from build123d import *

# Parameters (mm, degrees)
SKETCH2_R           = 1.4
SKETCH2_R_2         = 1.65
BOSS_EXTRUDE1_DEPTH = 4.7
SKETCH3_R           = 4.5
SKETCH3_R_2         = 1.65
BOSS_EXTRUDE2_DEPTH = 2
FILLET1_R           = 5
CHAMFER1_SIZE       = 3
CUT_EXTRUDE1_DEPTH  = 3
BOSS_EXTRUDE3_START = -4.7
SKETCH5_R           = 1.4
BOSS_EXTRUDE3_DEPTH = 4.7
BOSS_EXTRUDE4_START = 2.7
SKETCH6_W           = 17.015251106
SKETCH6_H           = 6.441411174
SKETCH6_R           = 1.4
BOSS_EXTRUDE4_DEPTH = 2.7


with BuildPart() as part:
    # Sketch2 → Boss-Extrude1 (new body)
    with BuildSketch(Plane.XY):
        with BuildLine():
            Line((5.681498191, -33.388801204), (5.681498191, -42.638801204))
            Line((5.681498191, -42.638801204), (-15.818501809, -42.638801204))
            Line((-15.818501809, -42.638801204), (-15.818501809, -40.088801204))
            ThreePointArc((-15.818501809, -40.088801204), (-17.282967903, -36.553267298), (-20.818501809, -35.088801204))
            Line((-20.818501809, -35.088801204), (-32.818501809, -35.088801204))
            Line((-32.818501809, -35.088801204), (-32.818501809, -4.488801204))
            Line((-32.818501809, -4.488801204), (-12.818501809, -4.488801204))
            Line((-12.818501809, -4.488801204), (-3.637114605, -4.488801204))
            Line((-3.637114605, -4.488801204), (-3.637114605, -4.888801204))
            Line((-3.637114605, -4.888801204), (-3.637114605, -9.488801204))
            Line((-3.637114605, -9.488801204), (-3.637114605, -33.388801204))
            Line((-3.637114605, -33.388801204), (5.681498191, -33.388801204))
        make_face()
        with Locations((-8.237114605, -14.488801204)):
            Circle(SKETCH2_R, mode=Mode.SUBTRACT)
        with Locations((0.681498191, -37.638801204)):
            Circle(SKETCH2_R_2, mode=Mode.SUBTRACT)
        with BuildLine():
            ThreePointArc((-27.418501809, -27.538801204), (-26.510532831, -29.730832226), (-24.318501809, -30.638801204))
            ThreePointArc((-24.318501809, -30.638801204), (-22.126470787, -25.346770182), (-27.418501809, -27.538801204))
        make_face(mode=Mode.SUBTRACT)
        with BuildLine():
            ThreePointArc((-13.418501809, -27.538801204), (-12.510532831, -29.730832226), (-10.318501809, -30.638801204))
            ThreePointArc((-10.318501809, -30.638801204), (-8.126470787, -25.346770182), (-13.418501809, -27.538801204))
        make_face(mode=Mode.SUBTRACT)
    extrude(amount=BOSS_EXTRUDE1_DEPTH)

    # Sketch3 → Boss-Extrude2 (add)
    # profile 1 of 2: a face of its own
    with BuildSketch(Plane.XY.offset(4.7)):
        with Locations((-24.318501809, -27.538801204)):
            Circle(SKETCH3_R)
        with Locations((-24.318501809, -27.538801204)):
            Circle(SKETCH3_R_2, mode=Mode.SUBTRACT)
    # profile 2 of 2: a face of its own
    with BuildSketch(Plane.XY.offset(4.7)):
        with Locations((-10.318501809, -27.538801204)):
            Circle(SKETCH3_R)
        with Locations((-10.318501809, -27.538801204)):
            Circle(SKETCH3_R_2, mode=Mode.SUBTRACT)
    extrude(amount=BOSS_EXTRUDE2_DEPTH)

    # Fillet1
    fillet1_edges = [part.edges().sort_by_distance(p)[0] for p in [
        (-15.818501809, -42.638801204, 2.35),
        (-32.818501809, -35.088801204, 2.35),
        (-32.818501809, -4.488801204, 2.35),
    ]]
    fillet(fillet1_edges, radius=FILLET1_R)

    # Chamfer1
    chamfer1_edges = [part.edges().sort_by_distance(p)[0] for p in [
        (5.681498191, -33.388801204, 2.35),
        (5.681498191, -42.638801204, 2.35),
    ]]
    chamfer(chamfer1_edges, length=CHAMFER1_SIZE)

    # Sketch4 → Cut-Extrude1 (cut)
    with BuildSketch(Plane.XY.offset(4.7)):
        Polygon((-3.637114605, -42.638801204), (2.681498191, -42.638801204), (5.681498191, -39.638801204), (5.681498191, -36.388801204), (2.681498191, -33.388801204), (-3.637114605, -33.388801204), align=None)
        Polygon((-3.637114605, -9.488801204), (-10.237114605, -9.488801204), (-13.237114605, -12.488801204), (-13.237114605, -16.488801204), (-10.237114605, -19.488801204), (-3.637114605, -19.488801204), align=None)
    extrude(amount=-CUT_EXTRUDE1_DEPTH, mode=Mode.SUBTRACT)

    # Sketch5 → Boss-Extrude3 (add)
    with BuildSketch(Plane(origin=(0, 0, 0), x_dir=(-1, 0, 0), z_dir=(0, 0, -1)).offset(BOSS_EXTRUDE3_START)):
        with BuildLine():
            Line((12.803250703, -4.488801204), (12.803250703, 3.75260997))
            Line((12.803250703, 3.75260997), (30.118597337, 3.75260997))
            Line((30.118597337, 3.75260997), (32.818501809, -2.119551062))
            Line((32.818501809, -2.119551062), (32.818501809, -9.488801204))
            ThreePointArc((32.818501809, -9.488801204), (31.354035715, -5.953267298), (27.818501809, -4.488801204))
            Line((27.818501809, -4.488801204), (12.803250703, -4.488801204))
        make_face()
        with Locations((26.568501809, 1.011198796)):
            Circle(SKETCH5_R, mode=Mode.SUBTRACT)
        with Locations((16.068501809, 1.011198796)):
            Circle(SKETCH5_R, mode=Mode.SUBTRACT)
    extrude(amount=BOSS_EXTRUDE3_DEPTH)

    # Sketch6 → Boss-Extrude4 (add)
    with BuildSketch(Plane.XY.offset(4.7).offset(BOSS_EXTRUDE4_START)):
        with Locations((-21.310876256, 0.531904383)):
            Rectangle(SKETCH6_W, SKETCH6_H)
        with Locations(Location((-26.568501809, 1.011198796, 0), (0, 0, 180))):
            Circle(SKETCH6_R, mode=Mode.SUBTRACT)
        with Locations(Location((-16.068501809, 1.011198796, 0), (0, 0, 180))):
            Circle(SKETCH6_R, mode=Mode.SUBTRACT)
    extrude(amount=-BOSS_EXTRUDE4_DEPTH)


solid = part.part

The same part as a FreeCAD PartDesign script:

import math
import FreeCAD as App
import Part
import Sketcher

V = App.Vector


def edges_at(feature, points):
    """Names of the edges that pass closest to the given points."""
    edges = feature.Shape.Edges
    near = lambda p: min(range(len(edges)), key=lambda i: edges[i].distToShape(Part.Vertex(*p))[0])
    return sorted({f"Edge{near(p) + 1}" for p in points})

doc = App.newDocument("Part")
body = doc.addObject("PartDesign::Body", "Body")

# Sketch on XY plane
sketch1 = doc.addObject("Sketcher::SketchObject", "Sketch")
body.addObject(sketch1)
sketch1.AttachmentSupport = (doc.XY_Plane, [""])
sketch1.MapMode = "FlatFace"
sketch1.addGeometry(Part.LineSegment(V(5.681498, -42.638801, 0), V(5.681498, -33.388801, 0)), False)
sketch1.addGeometry(Part.LineSegment(V(5.681498, -33.388801, 0), V(-3.637115, -33.388801, 0)), False)
sketch1.addGeometry(Part.LineSegment(V(-3.637115, -33.388801, 0), V(-3.637115, -4.488801, 0)), False)
sketch1.addGeometry(Part.LineSegment(V(-3.637115, -4.488801, 0), V(-32.818502, -4.488801, 0)), False)
sketch1.addGeometry(Part.LineSegment(V(-32.818502, -4.488801, 0), V(-32.818502, -35.088801, 0)), False)
sketch1.addGeometry(Part.LineSegment(V(-32.818502, -35.088801, 0), V(-20.818502, -35.088801, 0)), False)
sketch1.addGeometry(Part.ArcOfCircle(Part.Circle(V(-20.818502, -40.088801, 0), V(0, 0, 1), 5), math.radians(0), math.radians(90)), False)
sketch1.addGeometry(Part.LineSegment(V(-15.818502, -40.088801, 0), V(-15.818502, -42.638801, 0)), False)
sketch1.addGeometry(Part.LineSegment(V(-15.818502, -42.638801, 0), V(5.681498, -42.638801, 0)), False)
sketch1.addGeometry(Part.Circle(V(0.681498, -37.638801, 0), V(0, 0, 1), 1.65), False)
sketch1.addGeometry(Part.ArcOfCircle(Part.Circle(V(-10.318502, -27.538801, 0), V(0, 0, 1), 3.1), math.radians(-90), math.radians(180)), False)
sketch1.addGeometry(Part.ArcOfCircle(Part.Circle(V(-10.318502, -27.538801, 0), V(0, 0, 1), 3.1), math.radians(180), math.radians(270)), False)
sketch1.addGeometry(Part.ArcOfCircle(Part.Circle(V(-24.318502, -27.538801, 0), V(0, 0, 1), 3.1), math.radians(-90), math.radians(180)), False)
sketch1.addGeometry(Part.ArcOfCircle(Part.Circle(V(-24.318502, -27.538801, 0), V(0, 0, 1), 3.1), math.radians(180), math.radians(270)), False)
sketch1.addGeometry(Part.Circle(V(-8.237115, -14.488801, 0), V(0, 0, 1), 1.4), False)
sketch1.addConstraint(Sketcher.Constraint("Coincident", 0, 2, 1, 1))
sketch1.addConstraint(Sketcher.Constraint("Coincident", 1, 2, 2, 1))
sketch1.addConstraint(Sketcher.Constraint("Coincident", 2, 2, 3, 1))
sketch1.addConstraint(Sketcher.Constraint("Coincident", 3, 2, 4, 1))
sketch1.addConstraint(Sketcher.Constraint("Coincident", 4, 2, 5, 1))
sketch1.addConstraint(Sketcher.Constraint("Tangent", 5, 2, 6, 2))
sketch1.addConstraint(Sketcher.Constraint("Tangent", 6, 1, 7, 1))
sketch1.addConstraint(Sketcher.Constraint("Coincident", 7, 2, 8, 1))
sketch1.addConstraint(Sketcher.Constraint("Coincident", 8, 2, 0, 1))
sketch1.addConstraint(Sketcher.Constraint("Tangent", 10, 1, 11, 2))
sketch1.addConstraint(Sketcher.Constraint("Coincident", 11, 1, 10, 2))
sketch1.addConstraint(Sketcher.Constraint("Tangent", 12, 1, 13, 2))
sketch1.addConstraint(Sketcher.Constraint("Coincident", 13, 1, 12, 2))
sketch1.addConstraint(Sketcher.Constraint("Vertical", 0))
sketch1.addConstraint(Sketcher.Constraint("Horizontal", 1))
sketch1.addConstraint(Sketcher.Constraint("Vertical", 2))
sketch1.addConstraint(Sketcher.Constraint("Horizontal", 3))
sketch1.addConstraint(Sketcher.Constraint("Vertical", 4))
sketch1.addConstraint(Sketcher.Constraint("Horizontal", 5))
sketch1.addConstraint(Sketcher.Constraint("Vertical", 7))
sketch1.addConstraint(Sketcher.Constraint("Horizontal", 8))
sketch1.addConstraint(Sketcher.Constraint("Equal", 11, 12))
sketch1.addConstraint(Sketcher.Constraint("Horizontal", 11, 3, 12, 3))
sketch1.addConstraint(Sketcher.Constraint("Horizontal", 13, 3, 11, 1))
sketch1.addConstraint(Sketcher.Constraint("Horizontal", 11, 1, 13, 1))
sketch1.addConstraint(Sketcher.Constraint("Vertical", 11, 3, 10, 1))
sketch1.addConstraint(Sketcher.Constraint("Vertical", 13, 3, 12, 1))
sketch1.addConstraint(Sketcher.Constraint("Radius", 6, 5.0))
sketch1.addConstraint(Sketcher.Constraint("Diameter", 9, 3.3))
sketch1.addConstraint(Sketcher.Constraint("Diameter", 14, 2.8))
sketch1.addConstraint(Sketcher.Constraint("Radius", 10, 3.1))
sketch1.addConstraint(Sketcher.Constraint("DistanceX", 5, 1, 5, 2, 12.0))
sketch1.addConstraint(Sketcher.Constraint("DistanceX", 8, 1, 8, 2, 21.5))
sketch1.addConstraint(Sketcher.Constraint("DistanceY", 2, 1, 2, 2, 28.9))
sketch1.addConstraint(Sketcher.Constraint("DistanceY", 4, 2, 4, 1, 30.6))
sketch1.addConstraint(Sketcher.Constraint("DistanceX", 10, 3, 9, 3, 11.0))
sketch1.addConstraint(Sketcher.Constraint("DistanceX", 12, 3, 11, 3, 14.0))
sketch1.addConstraint(Sketcher.Constraint("DistanceX", 9, 3, 0, 2, 5.0))
sketch1.addConstraint(Sketcher.Constraint("DistanceY", 14, 3, 2, 2, 10.0))
sketch1.addConstraint(Sketcher.Constraint("DistanceY", 8, 2, 9, 3, 5.0))
sketch1.addConstraint(Sketcher.Constraint("DistanceY", 0, 1, 0, 2, 9.25))
sketch1.addConstraint(Sketcher.Constraint("DistanceY", 9, 3, 10, 3, 10.1))
sketch1.addConstraint(Sketcher.Constraint("DistanceX", 14, 3, 2, 2, 4.6))
sketch1.addConstraint(Sketcher.Constraint("DistanceX", 6, 3, -1, 1, 20.818502))
sketch1.addConstraint(Sketcher.Constraint("DistanceY", 6, 3, -1, 1, 40.088801))
sketch1.addConstraint(Sketcher.Constraint("DistanceX", 1, 2, 1, 1, 9.318613))
pad1 = doc.addObject("PartDesign::Pad", "Pad")
body.addObject(pad1)
pad1.Profile = sketch1
pad1.Length = 4.7

# Sketch on XY plane
sketch2 = doc.addObject("Sketcher::SketchObject", "Sketch001")
body.addObject(sketch2)
sketch2.AttachmentSupport = (doc.XY_Plane, [""])
sketch2.MapMode = "FlatFace"
sketch2.AttachmentOffset = App.Placement(V(0, 0, 4.7), App.Rotation())
sketch2.addGeometry(Part.Circle(V(-24.318502, -27.538801, 0), V(0, 0, 1), 4.5), False)
sketch2.addGeometry(Part.Circle(V(-24.318502, -27.538801, 0), V(0, 0, 1), 1.65), False)
sketch2.addGeometry(Part.Circle(V(-10.318502, -27.538801, 0), V(0, 0, 1), 4.5), False)
sketch2.addGeometry(Part.Circle(V(-10.318502, -27.538801, 0), V(0, 0, 1), 1.65), False)
sketch2.addConstraint(Sketcher.Constraint("Coincident", 1, 3, 0, 3))
sketch2.addConstraint(Sketcher.Constraint("Coincident", 3, 3, 2, 3))
sketch2.addConstraint(Sketcher.Constraint("Equal", 0, 2))
sketch2.addConstraint(Sketcher.Constraint("Equal", 1, 3))
sketch2.addConstraint(Sketcher.Constraint("Horizontal", 1, 3, 2, 3))
sketch2.addConstraint(Sketcher.Constraint("Diameter", 0, 9.0))
sketch2.addConstraint(Sketcher.Constraint("Diameter", 1, 3.3))
sketch2.addConstraint(Sketcher.Constraint("DistanceX", 0, 3, 2, 3, 14.0))
sketch2.addConstraint(Sketcher.Constraint("DistanceX", 0, 3, -1, 1, 24.318502))
sketch2.addConstraint(Sketcher.Constraint("DistanceY", 0, 3, -1, 1, 27.538801))
pad2 = doc.addObject("PartDesign::Pad", "Pad001")
body.addObject(pad2)
pad2.Profile = sketch2
pad2.Length = 2
doc.recompute()

fillet = doc.addObject("PartDesign::Fillet", "Fillet")
body.addObject(fillet)
fillet.Base = (pad2, edges_at(pad2, [(-15.819, -42.639, 2.35), (-32.819, -35.089, 2.35), (-32.819, -4.489, 2.35)]))
fillet.Radius = 5
doc.recompute()

chamfer = doc.addObject("PartDesign::Chamfer", "Chamfer")
body.addObject(chamfer)
chamfer.Base = (fillet, edges_at(fillet, [(5.681, -33.389, 2.35), (5.681, -42.639, 2.35)]))
chamfer.Size = 3

# Sketch on XY plane
sketch3 = doc.addObject("Sketcher::SketchObject", "Sketch002")
body.addObject(sketch3)
sketch3.AttachmentSupport = (doc.XY_Plane, [""])
sketch3.MapMode = "FlatFace"
sketch3.AttachmentOffset = App.Placement(V(0, 0, 4.7), App.Rotation())
sketch3.addGeometry(Part.LineSegment(V(-3.637115, -42.638801, 0), V(2.681498, -42.638801, 0)), False)
sketch3.addGeometry(Part.LineSegment(V(2.681498, -42.638801, 0), V(5.681498, -39.638801, 0)), False)
sketch3.addGeometry(Part.LineSegment(V(5.681498, -39.638801, 0), V(5.681498, -36.388801, 0)), False)
sketch3.addGeometry(Part.LineSegment(V(5.681498, -36.388801, 0), V(2.681498, -33.388801, 0)), False)
sketch3.addGeometry(Part.LineSegment(V(2.681498, -33.388801, 0), V(-3.637115, -33.388801, 0)), False)
sketch3.addGeometry(Part.LineSegment(V(-3.637115, -33.388801, 0), V(-3.637115, -42.638801, 0)), False)
sketch3.addGeometry(Part.LineSegment(V(-3.637115, -9.488801, 0), V(-10.237115, -9.488801, 0)), False)
sketch3.addGeometry(Part.LineSegment(V(-10.237115, -9.488801, 0), V(-13.237115, -12.488801, 0)), False)
sketch3.addGeometry(Part.LineSegment(V(-13.237115, -12.488801, 0), V(-13.237115, -16.488801, 0)), False)
sketch3.addGeometry(Part.LineSegment(V(-13.237115, -16.488801, 0), V(-10.237115, -19.488801, 0)), False)
sketch3.addGeometry(Part.LineSegment(V(-10.237115, -19.488801, 0), V(-3.637115, -19.488801, 0)), False)
sketch3.addGeometry(Part.LineSegment(V(-3.637115, -19.488801, 0), V(-3.637115, -9.488801, 0)), False)
sketch3.addConstraint(Sketcher.Constraint("Coincident", 0, 2, 1, 1))
sketch3.addConstraint(Sketcher.Constraint("Coincident", 1, 2, 2, 1))
sketch3.addConstraint(Sketcher.Constraint("Coincident", 2, 2, 3, 1))
sketch3.addConstraint(Sketcher.Constraint("Coincident", 3, 2, 4, 1))
sketch3.addConstraint(Sketcher.Constraint("Coincident", 4, 2, 5, 1))
sketch3.addConstraint(Sketcher.Constraint("Coincident", 5, 2, 0, 1))
sketch3.addConstraint(Sketcher.Constraint("Coincident", 6, 2, 7, 1))
sketch3.addConstraint(Sketcher.Constraint("Coincident", 7, 2, 8, 1))
sketch3.addConstraint(Sketcher.Constraint("Coincident", 8, 2, 9, 1))
sketch3.addConstraint(Sketcher.Constraint("Coincident", 9, 2, 10, 1))
sketch3.addConstraint(Sketcher.Constraint("Coincident", 10, 2, 11, 1))
sketch3.addConstraint(Sketcher.Constraint("Coincident", 11, 2, 6, 1))
sketch3.addConstraint(Sketcher.Constraint("Horizontal", 0))
sketch3.addConstraint(Sketcher.Constraint("Vertical", 2))
sketch3.addConstraint(Sketcher.Constraint("Horizontal", 4))
sketch3.addConstraint(Sketcher.Constraint("Vertical", 5))
sketch3.addConstraint(Sketcher.Constraint("Horizontal", 6))
sketch3.addConstraint(Sketcher.Constraint("Vertical", 8))
sketch3.addConstraint(Sketcher.Constraint("Horizontal", 10))
sketch3.addConstraint(Sketcher.Constraint("Vertical", 11))
sketch3.addConstraint(Sketcher.Constraint("Perpendicular", 1, 3))
sketch3.addConstraint(Sketcher.Constraint("Perpendicular", 3, 7))
sketch3.addConstraint(Sketcher.Constraint("Perpendicular", 7, 9))
sketch3.addConstraint(Sketcher.Constraint("Vertical", 0, 2, 3, 2))
sketch3.addConstraint(Sketcher.Constraint("Vertical", 6, 2, 9, 2))
sketch3.addConstraint(Sketcher.Constraint("Vertical", 5, 2, 10, 2))
sketch3.addConstraint(Sketcher.Constraint("Equal", 1, 3))
sketch3.addConstraint(Sketcher.Constraint("Equal", 3, 7))
sketch3.addConstraint(Sketcher.Constraint("DistanceY", 8, 2, 8, 1, 4.0))
sketch3.addConstraint(Sketcher.Constraint("DistanceY", 11, 1, 11, 2, 10.0))
sketch3.addConstraint(Sketcher.Constraint("DistanceX", 6, 2, 6, 1, 6.6))
sketch3.addConstraint(Sketcher.Constraint("DistanceY", 2, 1, 2, 2, 3.25))
sketch3.addConstraint(Sketcher.Constraint("DistanceY", 4, 2, 6, 2, 23.9))
sketch3.addConstraint(Sketcher.Constraint("DistanceX", -1, 1, 0, 2, 2.681498))
sketch3.addConstraint(Sketcher.Constraint("DistanceY", 0, 2, -1, 1, 42.638801))
sketch3.addConstraint(Sketcher.Constraint("DistanceX", 0, 1, 0, 2, 6.318613))
pocket1 = doc.addObject("PartDesign::Pocket", "Pocket")
body.addObject(pocket1)
pocket1.Profile = sketch3
pocket1.Length = 3

# Sketch on XY plane
sketch4 = doc.addObject("Sketcher::SketchObject", "Sketch003")
body.addObject(sketch4)
sketch4.AttachmentSupport = (doc.XY_Plane, [""])
sketch4.MapMode = "FlatFace"
sketch4.AttachmentOffset = App.Placement(V(0, 0, 4.7), App.Rotation())
sketch4.addGeometry(Part.LineSegment(V(-12.803251, 3.75261, 0), V(-12.803251, -4.488801, 0)), False)
sketch4.addGeometry(Part.LineSegment(V(-12.803251, -4.488801, 0), V(-27.818502, -4.488801, 0)), False)
sketch4.addGeometry(Part.ArcOfCircle(Part.Circle(V(-27.818502, -9.488801, 0), V(0, 0, 1), 5), math.radians(90), math.radians(180)), False)
sketch4.addGeometry(Part.LineSegment(V(-32.818502, -9.488801, 0), V(-32.818502, -2.119551, 0)), False)
sketch4.addGeometry(Part.LineSegment(V(-32.818502, -2.119551, 0), V(-30.118597, 3.75261, 0)), False)
sketch4.addGeometry(Part.LineSegment(V(-30.118597, 3.75261, 0), V(-12.803251, 3.75261, 0)), False)
sketch4.addGeometry(Part.Circle(V(-26.568502, 1.011199, 0), V(0, 0, 1), 1.4), False)
sketch4.addGeometry(Part.Circle(V(-16.068502, 1.011199, 0), V(0, 0, 1), 1.4), False)
sketch4.addConstraint(Sketcher.Constraint("Coincident", 0, 2, 1, 1))
sketch4.addConstraint(Sketcher.Constraint("Tangent", 1, 2, 2, 1))
sketch4.addConstraint(Sketcher.Constraint("Tangent", 2, 2, 3, 1))
sketch4.addConstraint(Sketcher.Constraint("Coincident", 3, 2, 4, 1))
sketch4.addConstraint(Sketcher.Constraint("Coincident", 4, 2, 5, 1))
sketch4.addConstraint(Sketcher.Constraint("Coincident", 5, 2, 0, 1))
sketch4.addConstraint(Sketcher.Constraint("Vertical", 0))
sketch4.addConstraint(Sketcher.Constraint("Horizontal", 1))
sketch4.addConstraint(Sketcher.Constraint("Vertical", 3))
sketch4.addConstraint(Sketcher.Constraint("Horizontal", 5))
sketch4.addConstraint(Sketcher.Constraint("Equal", 6, 7))
sketch4.addConstraint(Sketcher.Constraint("Horizontal", 6, 3, 7, 3))
sketch4.addConstraint(Sketcher.Constraint("Radius", 2, 5.0))
sketch4.addConstraint(Sketcher.Constraint("Diameter", 6, 2.8))
sketch4.addConstraint(Sketcher.Constraint("DistanceY", 2, 3, 6, 3, 10.5))
sketch4.addConstraint(Sketcher.Constraint("DistanceX", 6, 3, 7, 3, 10.5))
sketch4.addConstraint(Sketcher.Constraint("DistanceX", 2, 3, 6, 3, 1.25))
sketch4.addConstraint(Sketcher.Constraint("DistanceX", 1, 2, 1, 1, 15.015251))
sketch4.addConstraint(Sketcher.Constraint("DistanceY", 0, 2, 0, 1, 8.241411))
sketch4.addConstraint(Sketcher.Constraint("DistanceY", 3, 1, 3, 2, 7.36925))
sketch4.addConstraint(Sketcher.Constraint("DistanceX", 2, 3, -1, 1, 27.818502))
sketch4.addConstraint(Sketcher.Constraint("DistanceY", 2, 3, -1, 1, 9.488801))
sketch4.addConstraint(Sketcher.Constraint("DistanceX", 5, 1, 5, 2, 17.315347))
pad3 = doc.addObject("PartDesign::Pad", "Pad002")
body.addObject(pad3)
pad3.Profile = sketch4
pad3.Length = 4.7
pad3.Reversed = True

# Sketch on XY plane
sketch5 = doc.addObject("Sketcher::SketchObject", "Sketch004")
body.addObject(sketch5)
sketch5.AttachmentSupport = (doc.XY_Plane, [""])
sketch5.MapMode = "FlatFace"
sketch5.AttachmentOffset = App.Placement(V(0, 0, 7.4), App.Rotation())
sketch5.addGeometry(Part.LineSegment(V(-29.818502, 3.75261, 0), V(-29.818502, -2.688801, 0)), False)
sketch5.addGeometry(Part.LineSegment(V(-29.818502, -2.688801, 0), V(-12.803251, -2.688801, 0)), False)
sketch5.addGeometry(Part.LineSegment(V(-12.803251, -2.688801, 0), V(-12.803251, 3.75261, 0)), False)
sketch5.addGeometry(Part.LineSegment(V(-12.803251, 3.75261, 0), V(-29.818502, 3.75261, 0)), False)
sketch5.addGeometry(Part.Circle(V(-26.568502, 1.011199, 0), V(0, 0, 1), 1.4), False)
sketch5.addGeometry(Part.Circle(V(-16.068502, 1.011199, 0), V(0, 0, 1), 1.4), False)
sketch5.addConstraint(Sketcher.Constraint("Coincident", 0, 2, 1, 1))
sketch5.addConstraint(Sketcher.Constraint("Coincident", 1, 2, 2, 1))
sketch5.addConstraint(Sketcher.Constraint("Coincident", 2, 2, 3, 1))
sketch5.addConstraint(Sketcher.Constraint("Coincident", 3, 2, 0, 1))
sketch5.addConstraint(Sketcher.Constraint("Vertical", 0))
sketch5.addConstraint(Sketcher.Constraint("Horizontal", 1))
sketch5.addConstraint(Sketcher.Constraint("Vertical", 2))
sketch5.addConstraint(Sketcher.Constraint("Horizontal", 3))
sketch5.addConstraint(Sketcher.Constraint("Equal", 4, 5))
sketch5.addConstraint(Sketcher.Constraint("Horizontal", 4, 3, 5, 3))
sketch5.addConstraint(Sketcher.Constraint("Diameter", 4, 2.8))
sketch5.addConstraint(Sketcher.Constraint("DistanceX", 4, 3, 5, 3, 10.5))
sketch5.addConstraint(Sketcher.Constraint("DistanceY", 0, 2, 4, 3, 3.7))
sketch5.addConstraint(Sketcher.Constraint("DistanceX", 0, 2, 4, 3, 3.25))
sketch5.addConstraint(Sketcher.Constraint("DistanceX", 1, 1, 1, 2, 17.015251))
sketch5.addConstraint(Sketcher.Constraint("DistanceY", 0, 2, 0, 1, 6.441411))
sketch5.addConstraint(Sketcher.Constraint("DistanceX", 4, 3, -1, 1, 26.568502))
sketch5.addConstraint(Sketcher.Constraint("DistanceY", -1, 1, 4, 3, 1.011199))
pad4 = doc.addObject("PartDesign::Pad", "Pad003")
body.addObject(pad4)
pad4.Profile = sketch5
pad4.Length = 2.7
pad4.Reversed = True

doc.recompute()
